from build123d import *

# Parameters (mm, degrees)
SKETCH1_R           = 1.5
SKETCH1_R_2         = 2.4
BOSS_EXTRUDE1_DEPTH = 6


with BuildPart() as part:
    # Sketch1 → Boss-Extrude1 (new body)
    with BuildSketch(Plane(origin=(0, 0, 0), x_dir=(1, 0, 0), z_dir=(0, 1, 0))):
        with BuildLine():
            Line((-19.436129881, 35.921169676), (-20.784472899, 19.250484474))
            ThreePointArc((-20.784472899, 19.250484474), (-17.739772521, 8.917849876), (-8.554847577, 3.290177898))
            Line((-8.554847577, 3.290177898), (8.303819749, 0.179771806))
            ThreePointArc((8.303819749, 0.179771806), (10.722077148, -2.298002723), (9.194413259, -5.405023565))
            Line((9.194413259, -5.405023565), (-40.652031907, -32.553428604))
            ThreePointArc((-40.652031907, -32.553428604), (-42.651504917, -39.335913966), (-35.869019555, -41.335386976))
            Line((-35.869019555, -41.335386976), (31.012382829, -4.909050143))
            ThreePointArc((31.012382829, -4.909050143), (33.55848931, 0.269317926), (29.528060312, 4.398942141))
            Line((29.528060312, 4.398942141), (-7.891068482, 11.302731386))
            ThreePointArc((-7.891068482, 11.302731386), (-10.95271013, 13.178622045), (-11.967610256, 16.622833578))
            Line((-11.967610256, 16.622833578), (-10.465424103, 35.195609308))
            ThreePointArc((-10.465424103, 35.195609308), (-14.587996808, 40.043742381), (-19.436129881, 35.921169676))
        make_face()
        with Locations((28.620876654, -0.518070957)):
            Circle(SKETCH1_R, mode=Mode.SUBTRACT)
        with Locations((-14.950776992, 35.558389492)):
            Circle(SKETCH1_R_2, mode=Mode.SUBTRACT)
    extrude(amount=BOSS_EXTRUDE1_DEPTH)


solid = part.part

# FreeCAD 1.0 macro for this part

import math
import FreeCAD as App
import Part
import Sketcher
from FreeCAD import Vector
Q = App.Units.Quantity

doc = App.newDocument("Part")
params = doc.addObject("Spreadsheet::Sheet", "Params")
for row, (alias, value) in enumerate([
    ("sketch1_diameter", "3 mm"),
    ("sketch1_radius", "15 mm"),
    ("sketch1_radius2", "3 mm"),
    ("sketch1_radius3", "5 mm"),
    ("sketch1_diameter2", "4.8 mm"),
    ("pad1_length", "6 mm"),
], start=1):
    params.set(f"A{row}", alias)
    params.set(f"B{row}", "=" + value)
    params.setAlias(f"B{row}", alias)

body = doc.addObject("PartDesign::Body", "Body")

# Sketch on XZ plane
sketch1 = body.newObject("Sketcher::SketchObject", "Sketch")
sketch1.AttachmentSupport = (doc.getObject("XZ_Plane"), [""])
sketch1.MapMode = "FlatFace"
sketch1.addGeometry([
    Part.LineSegment(Vector(-19.43613, -35.92117, 0), Vector(-20.784473, -19.250484, 0)),  # 0
    Part.ArcOfCircle(Part.Circle(Vector(-5.833297, -18.041217, 0), Vector(0, 0, 1), 15), math.radians(100.453457), math.radians(184.624079)),  # 1
    Part.LineSegment(Vector(-8.554848, -3.290178, 0), Vector(8.30382, -0.179772, 0)),  # 2
    Part.ArcOfCircle(Part.Circle(Vector(7.75951, 2.770436, 0), Vector(0, 0, 1), 3), math.radians(-79.546543), math.radians(61.425488)),  # 3
    Part.LineSegment(Vector(9.194413, 5.405024, 0), Vector(-40.652032, 32.553429, 0)),  # 4
    Part.ArcOfCircle(Part.Circle(Vector(-38.260526, 36.944408, 0), Vector(0, 0, 1), 5), math.radians(61.425488), math.radians(241.425488)),  # 5
    Part.LineSegment(Vector(-35.86902, 41.335387, 0), Vector(31.012383, 4.90905, 0)),  # 6
    Part.ArcOfCircle(Part.Circle(Vector(28.620877, 0.518071, 0), Vector(0, 0, 1), 5), math.radians(-79.546543), math.radians(61.425488)),  # 7
    Part.LineSegment(Vector(29.52806, -4.398942, 0), Vector(-7.891068, -11.302731, 0)),  # 8
    Part.ArcOfCircle(Part.Circle(Vector(-6.983885, -16.219744, 0), Vector(0, 0, 1), 5), math.radians(100.453457), math.radians(184.624079)),  # 9
    Part.LineSegment(Vector(-11.96761, -16.622834, 0), Vector(-10.465424, -35.195609, 0)),  # 10
    Part.ArcOfCircle(Part.Circle(Vector(-14.950777, -35.558389, 0), Vector(0, 0, 1), 4.5), math.radians(-175.375921), math.radians(4.624079)),  # 11
    Part.Circle(Vector(28.620877, 0.518071, 0), Vector(0, 0, 1), 1.5),  # 12
    Part.Circle(Vector(-14.950777, -35.558389, 0), Vector(0, 0, 1), 2.4),  # 13
], False)
sketch1.addConstraint([
    Sketcher.Constraint("Tangent", 0, 2, 1, 2),
    Sketcher.Constraint("Tangent", 1, 1, 2, 1),
    Sketcher.Constraint("Tangent", 2, 2, 3, 1),
    Sketcher.Constraint("Tangent", 3, 2, 4, 1),
    Sketcher.Constraint("Tangent", 4, 2, 5, 2),
    Sketcher.Constraint("Tangent", 5, 1, 6, 1),
    Sketcher.Constraint("Tangent", 6, 2, 7, 2),
    Sketcher.Constraint("Tangent", 7, 1, 8, 1),
    Sketcher.Constraint("Tangent", 8, 2, 9, 1),
    Sketcher.Constraint("Tangent", 9, 2, 10, 1),
    Sketcher.Constraint("Tangent", 10, 2, 11, 2),
    Sketcher.Constraint("Tangent", 11, 1, 0, 1),
    Sketcher.Constraint("Coincident", 12, 3, 7, 3),
    Sketcher.Constraint("Coincident", 13, 3, 11, 3),
    Sketcher.Constraint("Equal", 5, 7),
    Sketcher.Constraint("Equal", 7, 9),
    Sketcher.Constraint("Parallel", 4, 6),
    Sketcher.Constraint("Parallel", 2, 8),
    Sketcher.Constraint("Parallel", 0, 10),
    Sketcher.Constraint("Diameter", 12, Q("3 mm")),
    Sketcher.Constraint("Radius", 1, Q("15 mm")),
    Sketcher.Constraint("Radius", 3, Q("3 mm")),
    Sketcher.Constraint("Radius", 5, Q("5 mm")),
    Sketcher.Constraint("Diameter", 13, Q("4.8 mm")),
    Sketcher.Constraint("Radius", 11, Q("4.5 mm")),
    Sketcher.Constraint("Distance", 2, Q("17.1432 mm")),
    Sketcher.Constraint("DistanceY", 1, 1, 3, 2, Q("8.695201 mm")),
    Sketcher.Constraint("Distance", 6, Q("76.157731 mm")),
    Sketcher.Constraint("Distance", 8, Q("38.05067 mm")),
    Sketcher.Constraint("DistanceX", -1, 1, 3, 3, Q("7.75951 mm")),
    Sketcher.Constraint("DistanceY", -1, 1, 7, 3, Q("0.518071 mm")),
    Sketcher.Constraint("DistanceY", 11, 3, -1, 1, Q("35.558389 mm")),
    Sketcher.Constraint("DistanceY", 2, 2, -1, 1, Q("0.179772 mm")),
    Sketcher.Constraint("DistanceX", 4, 2, -1, 1, Q("40.652032 mm")),
])
sketch1.setExpression("Constraints[19]", "Params.sketch1_diameter")
sketch1.setExpression("Constraints[20]", "Params.sketch1_radius")
sketch1.setExpression("Constraints[21]", "Params.sketch1_radius2")
sketch1.setExpression("Constraints[22]", "Params.sketch1_radius3")
sketch1.setExpression("Constraints[23]", "Params.sketch1_diameter2")
pad1 = body.newObject("PartDesign::Pad", "Pad")
pad1.Profile = sketch1
pad1.setExpression("Length", "Params.pad1_length")
pad1.Reversed = True

doc.recompute()
